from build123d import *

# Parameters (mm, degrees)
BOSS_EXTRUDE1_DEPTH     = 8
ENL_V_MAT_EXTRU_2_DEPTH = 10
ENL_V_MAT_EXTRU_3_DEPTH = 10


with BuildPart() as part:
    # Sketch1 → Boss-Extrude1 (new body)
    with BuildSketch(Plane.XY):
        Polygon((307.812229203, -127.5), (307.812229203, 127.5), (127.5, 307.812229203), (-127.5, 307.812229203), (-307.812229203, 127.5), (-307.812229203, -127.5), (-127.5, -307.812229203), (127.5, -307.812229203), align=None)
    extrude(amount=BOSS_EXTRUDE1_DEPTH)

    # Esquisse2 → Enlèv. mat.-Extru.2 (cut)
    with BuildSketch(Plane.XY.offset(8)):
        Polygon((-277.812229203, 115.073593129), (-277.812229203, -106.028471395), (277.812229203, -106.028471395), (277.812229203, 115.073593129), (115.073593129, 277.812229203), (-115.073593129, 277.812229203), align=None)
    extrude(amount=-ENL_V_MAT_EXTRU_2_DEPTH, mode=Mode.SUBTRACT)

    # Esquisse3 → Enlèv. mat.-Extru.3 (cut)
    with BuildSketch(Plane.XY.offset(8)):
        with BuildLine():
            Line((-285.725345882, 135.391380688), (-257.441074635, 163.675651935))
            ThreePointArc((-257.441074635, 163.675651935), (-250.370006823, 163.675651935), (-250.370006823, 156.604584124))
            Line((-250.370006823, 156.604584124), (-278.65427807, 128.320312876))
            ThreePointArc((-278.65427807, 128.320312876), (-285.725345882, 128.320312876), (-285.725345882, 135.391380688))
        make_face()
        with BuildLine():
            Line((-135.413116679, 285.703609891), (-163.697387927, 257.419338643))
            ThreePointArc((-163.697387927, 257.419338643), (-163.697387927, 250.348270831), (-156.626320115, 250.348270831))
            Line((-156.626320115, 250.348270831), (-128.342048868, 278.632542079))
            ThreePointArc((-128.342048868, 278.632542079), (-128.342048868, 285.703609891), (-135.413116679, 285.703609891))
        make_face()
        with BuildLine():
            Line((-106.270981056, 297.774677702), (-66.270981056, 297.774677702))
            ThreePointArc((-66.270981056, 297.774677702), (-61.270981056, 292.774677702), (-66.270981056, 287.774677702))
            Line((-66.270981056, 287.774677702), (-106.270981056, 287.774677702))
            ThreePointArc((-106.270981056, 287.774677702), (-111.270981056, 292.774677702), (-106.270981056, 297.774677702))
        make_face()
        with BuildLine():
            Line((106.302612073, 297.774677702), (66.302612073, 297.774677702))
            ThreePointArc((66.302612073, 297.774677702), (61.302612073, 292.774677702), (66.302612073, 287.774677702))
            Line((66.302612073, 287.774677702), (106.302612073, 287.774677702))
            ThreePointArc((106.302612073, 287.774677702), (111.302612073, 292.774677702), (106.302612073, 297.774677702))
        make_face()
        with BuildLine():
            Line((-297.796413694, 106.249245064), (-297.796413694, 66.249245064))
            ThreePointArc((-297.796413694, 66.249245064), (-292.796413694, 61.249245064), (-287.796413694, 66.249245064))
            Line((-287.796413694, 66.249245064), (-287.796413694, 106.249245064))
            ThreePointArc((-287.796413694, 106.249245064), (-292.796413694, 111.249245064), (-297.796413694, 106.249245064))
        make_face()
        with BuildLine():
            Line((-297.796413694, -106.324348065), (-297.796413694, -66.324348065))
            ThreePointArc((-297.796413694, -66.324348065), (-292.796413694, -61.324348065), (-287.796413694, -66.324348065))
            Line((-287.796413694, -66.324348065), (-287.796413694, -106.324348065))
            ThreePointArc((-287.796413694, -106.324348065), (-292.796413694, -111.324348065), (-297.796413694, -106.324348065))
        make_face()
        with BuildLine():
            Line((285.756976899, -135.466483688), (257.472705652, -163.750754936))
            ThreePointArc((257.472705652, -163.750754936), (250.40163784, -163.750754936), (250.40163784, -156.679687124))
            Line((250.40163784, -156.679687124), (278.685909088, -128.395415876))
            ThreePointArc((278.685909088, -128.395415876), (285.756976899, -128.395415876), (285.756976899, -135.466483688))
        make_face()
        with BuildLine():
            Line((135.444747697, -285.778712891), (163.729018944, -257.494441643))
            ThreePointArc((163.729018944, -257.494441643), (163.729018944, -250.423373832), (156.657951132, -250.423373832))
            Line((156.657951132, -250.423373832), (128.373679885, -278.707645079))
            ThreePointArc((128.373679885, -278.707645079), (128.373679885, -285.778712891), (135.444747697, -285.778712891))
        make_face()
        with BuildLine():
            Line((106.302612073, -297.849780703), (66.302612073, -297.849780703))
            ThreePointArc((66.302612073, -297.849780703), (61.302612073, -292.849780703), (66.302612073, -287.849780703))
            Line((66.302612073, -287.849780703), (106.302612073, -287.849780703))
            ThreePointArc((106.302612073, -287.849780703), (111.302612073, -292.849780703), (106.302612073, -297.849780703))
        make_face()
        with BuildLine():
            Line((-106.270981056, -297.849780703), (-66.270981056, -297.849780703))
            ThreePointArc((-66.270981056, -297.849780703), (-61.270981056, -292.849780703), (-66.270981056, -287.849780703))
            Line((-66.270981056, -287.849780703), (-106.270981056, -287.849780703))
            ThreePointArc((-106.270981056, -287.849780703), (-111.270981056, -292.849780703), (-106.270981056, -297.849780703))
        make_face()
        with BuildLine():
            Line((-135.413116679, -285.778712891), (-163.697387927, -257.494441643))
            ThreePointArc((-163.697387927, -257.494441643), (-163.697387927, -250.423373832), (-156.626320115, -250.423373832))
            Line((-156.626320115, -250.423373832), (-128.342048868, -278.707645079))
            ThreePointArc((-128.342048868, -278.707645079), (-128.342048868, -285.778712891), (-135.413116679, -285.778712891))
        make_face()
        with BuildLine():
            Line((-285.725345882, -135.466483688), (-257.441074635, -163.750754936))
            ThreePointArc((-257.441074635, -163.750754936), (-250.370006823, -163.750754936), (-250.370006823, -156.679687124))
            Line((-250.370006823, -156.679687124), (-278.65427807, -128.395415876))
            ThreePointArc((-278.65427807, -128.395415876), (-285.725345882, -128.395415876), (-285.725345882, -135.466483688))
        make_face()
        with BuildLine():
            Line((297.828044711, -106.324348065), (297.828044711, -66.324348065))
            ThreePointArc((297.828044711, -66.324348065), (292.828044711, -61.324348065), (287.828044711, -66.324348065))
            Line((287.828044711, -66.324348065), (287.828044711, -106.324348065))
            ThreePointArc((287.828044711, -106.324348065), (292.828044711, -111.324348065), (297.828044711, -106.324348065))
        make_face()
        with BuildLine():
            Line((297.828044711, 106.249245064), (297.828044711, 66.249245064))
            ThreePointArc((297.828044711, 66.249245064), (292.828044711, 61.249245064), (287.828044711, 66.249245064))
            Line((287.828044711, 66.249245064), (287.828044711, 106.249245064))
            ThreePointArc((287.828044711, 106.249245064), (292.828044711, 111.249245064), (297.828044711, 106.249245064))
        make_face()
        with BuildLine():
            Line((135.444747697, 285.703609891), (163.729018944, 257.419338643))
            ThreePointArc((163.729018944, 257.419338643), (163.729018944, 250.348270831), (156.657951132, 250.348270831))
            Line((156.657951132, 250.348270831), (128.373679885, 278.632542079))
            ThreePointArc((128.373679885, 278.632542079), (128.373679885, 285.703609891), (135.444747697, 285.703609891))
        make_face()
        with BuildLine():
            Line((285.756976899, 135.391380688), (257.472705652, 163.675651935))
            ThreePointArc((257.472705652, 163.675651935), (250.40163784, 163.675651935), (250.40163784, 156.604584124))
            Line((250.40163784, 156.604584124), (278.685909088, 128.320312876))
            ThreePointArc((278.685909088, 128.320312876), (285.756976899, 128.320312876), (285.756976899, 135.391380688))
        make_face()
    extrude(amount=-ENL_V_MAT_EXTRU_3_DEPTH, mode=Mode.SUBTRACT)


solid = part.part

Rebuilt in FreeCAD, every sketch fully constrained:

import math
import FreeCAD as App
import Part
import Sketcher
from FreeCAD import Vector

doc = App.newDocument("Part")
body = doc.addObject("PartDesign::Body", "Body")

sketch1 = body.newObject("Sketcher::SketchObject", "Sketch")
sketch1.AttachmentSupport = (doc.getObject("XY_Plane"), [""])
sketch1.MapMode = "FlatFace"
sketch1.addGeometry(Part.LineSegment(Vector(307.812229, -127.5, 0), Vector(307.812229, 127.5, 0)), False)
sketch1.addGeometry(Part.LineSegment(Vector(307.812229, 127.5, 0), Vector(127.5, 307.812229, 0)), False)
sketch1.addGeometry(Part.LineSegment(Vector(127.5, 307.812229, 0), Vector(-127.5, 307.812229, 0)), False)
sketch1.addGeometry(Part.LineSegment(Vector(-127.5, 307.812229, 0), Vector(-307.812229, 127.5, 0)), False)
sketch1.addGeometry(Part.LineSegment(Vector(-307.812229, 127.5, 0), Vector(-307.812229, -127.5, 0)), False)
sketch1.addGeometry(Part.LineSegment(Vector(-307.812229, -127.5, 0), Vector(-127.5, -307.812229, 0)), False)
sketch1.addGeometry(Part.LineSegment(Vector(-127.5, -307.812229, 0), Vector(127.5, -307.812229, 0)), False)
sketch1.addGeometry(Part.LineSegment(Vector(127.5, -307.812229, 0), Vector(307.812229, -127.5, 0)), False)
sketch1.addConstraint(Sketcher.Constraint("Coincident", 0, 2, 1, 1))
sketch1.addConstraint(Sketcher.Constraint("Coincident", 1, 2, 2, 1))
sketch1.addConstraint(Sketcher.Constraint("Coincident", 2, 2, 3, 1))
sketch1.addConstraint(Sketcher.Constraint("Coincident", 3, 2, 4, 1))
sketch1.addConstraint(Sketcher.Constraint("Coincident", 4, 2, 5, 1))
sketch1.addConstraint(Sketcher.Constraint("Coincident", 5, 2, 6, 1))
sketch1.addConstraint(Sketcher.Constraint("Coincident", 6, 2, 7, 1))
sketch1.addConstraint(Sketcher.Constraint("Coincident", 7, 2, 0, 1))
sketch1.addConstraint(Sketcher.Constraint("Vertical", 0))
sketch1.addConstraint(Sketcher.Constraint("Horizontal", 2))
sketch1.addConstraint(Sketcher.Constraint("Vertical", 4))
sketch1.addConstraint(Sketcher.Constraint("Horizontal", 6))
sketch1.addConstraint(Sketcher.Constraint("Symmetric", 0, 2, 4, 2, -1, 1))
sketch1.addConstraint(Sketcher.Constraint("Symmetric", 1, 2, 5, 2, -1, 1))
sketch1.addConstraint(Sketcher.Constraint("Perpendicular", 1, 3))
sketch1.addConstraint(Sketcher.Constraint("Perpendicular", 5, 7))
sketch1.addConstraint(Sketcher.Constraint("Horizontal", 0, 2, 3, 2))
sketch1.addConstraint(Sketcher.Constraint("Horizontal", 4, 2, 7, 2))
sketch1.addConstraint(Sketcher.Constraint("Vertical", 2, 2, 5, 2))
sketch1.addConstraint(Sketcher.Constraint("Equal", 6, 0))
sketch1.addConstraint(Sketcher.Constraint("DistanceX", 2, 2, 2, 1, 255.0))
sketch1.addConstraint(Sketcher.Constraint("Distance", 1, 255.0))
pad1 = body.newObject("PartDesign::Pad", "Pad")
pad1.Profile = sketch1
pad1.Length = 8

sketch2 = body.newObject("Sketcher::SketchObject", "Sketch001")
sketch2.AttachmentSupport = (doc.getObject("XY_Plane"), [""])
sketch2.MapMode = "FlatFace"
sketch2.AttachmentOffset = App.Placement(Vector(0, 0, 8), App.Rotation())
sketch2.addGeometry(Part.LineSegment(Vector(-277.812229, 115.073593, 0), Vector(-277.812229, -106.028471, 0)), False)
sketch2.addGeometry(Part.LineSegment(Vector(-277.812229, -106.028471, 0), Vector(277.812229, -106.028471, 0)), False)
sketch2.addGeometry(Part.LineSegment(Vector(277.812229, -106.028471, 0), Vector(277.812229, 115.073593, 0)), False)
sketch2.addGeometry(Part.LineSegment(Vector(277.812229, 115.073593, 0), Vector(115.073593, 277.812229, 0)), False)
sketch2.addGeometry(Part.LineSegment(Vector(115.073593, 277.812229, 0), Vector(-115.073593, 277.812229, 0)), False)
sketch2.addGeometry(Part.LineSegment(Vector(-115.073593, 277.812229, 0), Vector(-277.812229, 115.073593, 0)), False)
sketch2.addConstraint(Sketcher.Constraint("Coincident", 0, 2, 1, 1))
sketch2.addConstraint(Sketcher.Constraint("Coincident", 1, 2, 2, 1))
sketch2.addConstraint(Sketcher.Constraint("Coincident", 2, 2, 3, 1))
sketch2.addConstraint(Sketcher.Constraint("Coincident", 3, 2, 4, 1))
sketch2.addConstraint(Sketcher.Constraint("Coincident", 4, 2, 5, 1))
sketch2.addConstraint(Sketcher.Constraint("Coincident", 5, 2, 0, 1))
sketch2.addConstraint(Sketcher.Constraint("Vertical", 0))
sketch2.addConstraint(Sketcher.Constraint("Horizontal", 1))
sketch2.addConstraint(Sketcher.Constraint("Vertical", 2))
sketch2.addConstraint(Sketcher.Constraint("Horizontal", 4))
sketch2.addConstraint(Sketcher.Constraint("Symmetric", 2, 2, 5, 2, -2))
sketch2.addConstraint(Sketcher.Constraint("Perpendicular", 3, 5))
sketch2.addConstraint(Sketcher.Constraint("Equal", 3, 5))
sketch2.addConstraint(Sketcher.Constraint("DistanceX", 1, 1, 1, 2, 555.624458))
sketch2.addConstraint(Sketcher.Constraint("DistanceY", 1, 2, 3, 2, 383.840701))
sketch2.addConstraint(Sketcher.Constraint("DistanceX", 4, 2, 4, 1, 230.147186))
sketch2.addConstraint(Sketcher.Constraint("DistanceY", 0, 2, -1, 1, 106.028471))
pocket1 = body.newObject("PartDesign::Pocket", "Pocket")
pocket1.Profile = sketch2
pocket1.Length = 10

sketch3 = body.newObject("Sketcher::SketchObject", "Sketch002")
sketch3.AttachmentSupport = (doc.getObject("XY_Plane"), [""])
sketch3.MapMode = "FlatFace"
sketch3.AttachmentOffset = App.Placement(Vector(0, 0, 8), App.Rotation())
sketch3.addGeometry(Part.LineSegment(Vector(-257.441075, 163.675652, 0), Vector(-285.725346, 135.391381, 0)), False)
sketch3.addGeometry(Part.ArcOfCircle(Part.Circle(Vector(-282.189812, 131.855847, 0), Vector(0, 0, 1), 5), math.radians(135), math.radians(315)), False)
sketch3.addGeometry(Part.LineSegment(Vector(-278.654278, 128.320313, 0), Vector(-250.370007, 156.604584, 0)), False)
sketch3.addGeometry(Part.ArcOfCircle(Part.Circle(Vector(-253.905541, 160.140118, 0), Vector(0, 0, 1), 5), math.radians(-45), math.radians(135)), False)
sketch3.addGeometry(Part.LineSegment(Vector(-135.413117, 285.70361, 0), Vector(-163.697388, 257.419339, 0)), False)
sketch3.addGeometry(Part.ArcOfCircle(Part.Circle(Vector(-160.161854, 253.883805, 0), Vector(0, 0, 1), 5), math.radians(135), math.radians(315)), False)
sketch3.addGeometry(Part.LineSegment(Vector(-156.62632, 250.348271, 0), Vector(-128.342049, 278.632542, 0)), False)
sketch3.addGeometry(Part.ArcOfCircle(Part.Circle(Vector(-131.877583, 282.168076, 0), Vector(0, 0, 1), 5), math.radians(-45), math.radians(135)), False)
sketch3.addGeometry(Part.LineSegment(Vector(-66.270981, 297.774678, 0), Vector(-106.270981, 297.774678, 0)), False)
sketch3.addGeometry(Part.ArcOfCircle(Part.Circle(Vector(-106.270981, 292.774678, 0), Vector(0, 0, 1), 5), math.radians(90), math.radians(270)), False)
sketch3.addGeometry(Part.LineSegment(Vector(-106.270981, 287.774678, 0), Vector(-66.270981, 287.774678, 0)), False)
sketch3.addGeometry(Part.ArcOfCircle(Part.Circle(Vector(-66.270981, 292.774678, 0), Vector(0, 0, 1), 5), math.radians(-90), math.radians(90)), False)
sketch3.addGeometry(Part.LineSegment(Vector(106.302612, 297.774678, 0), Vector(66.302612, 297.774678, 0)), False)
sketch3.addGeometry(Part.ArcOfCircle(Part.Circle(Vector(66.302612, 292.774678, 0), Vector(0, 0, 1), 5), math.radians(90), math.radians(270)), False)
sketch3.addGeometry(Part.LineSegment(Vector(66.302612, 287.774678, 0), Vector(106.302612, 287.774678, 0)), False)
sketch3.addGeometry(Part.ArcOfCircle(Part.Circle(Vector(106.302612, 292.774678, 0), Vector(0, 0, 1), 5), math.radians(-90), math.radians(90)), False)
sketch3.addGeometry(Part.LineSegment(Vector(-297.796414, 106.249245, 0), Vector(-297.796414, 66.249245, 0)), False)
sketch3.addGeometry(Part.ArcOfCircle(Part.Circle(Vector(-292.796414, 66.249245, 0), Vector(0, 0, 1), 5), math.radians(180), math.radians(360)), False)
sketch3.addGeometry(Part.LineSegment(Vector(-287.796414, 66.249245, 0), Vector(-287.796414, 106.249245, 0)), False)
sketch3.addGeometry(Part.ArcOfCircle(Part.Circle(Vector(-292.796414, 106.249245, 0), Vector(0, 0, 1), 5), math.radians(0), math.radians(180)), False)
sketch3.addGeometry(Part.LineSegment(Vector(-297.796414, -66.324348, 0), Vector(-297.796414, -106.324348, 0)), False)
sketch3.addGeometry(Part.ArcOfCircle(Part.Circle(Vector(-292.796414, -106.324348, 0), Vector(0, 0, 1), 5), math.radians(180), math.radians(360)), False)
sketch3.addGeometry(Part.LineSegment(Vector(-287.796414, -106.324348, 0), Vector(-287.796414, -66.324348, 0)), False)
sketch3.addGeometry(Part.ArcOfCircle(Part.Circle(Vector(-292.796414, -66.324348, 0), Vector(0, 0, 1), 5), math.radians(0), math.radians(180)), False)
sketch3.addGeometry(Part.LineSegment(Vector(257.472706, -163.750755, 0), Vector(285.756977, -135.466484, 0)), False)
sketch3.addGeometry(Part.ArcOfCircle(Part.Circle(Vector(282.221443, -131.93095, 0), Vector(0, 0, 1), 5), math.radians(-45), math.radians(135)), False)
sketch3.addGeometry(Part.LineSegment(Vector(278.685909, -128.395416, 0), Vector(250.401638, -156.679687, 0)), False)
sketch3.addGeometry(Part.ArcOfCircle(Part.Circle(Vector(253.937172, -160.215221, 0), Vector(0, 0, 1), 5), math.radians(135), math.radians(315)), False)
sketch3.addGeometry(Part.LineSegment(Vector(135.444748, -285.778713, 0), Vector(163.729019, -257.494442, 0)), False)
sketch3.addGeometry(Part.ArcOfCircle(Part.Circle(Vector(160.193485, -253.958908, 0), Vector(0, 0, 1), 5), math.radians(-45), math.radians(135)), False)
sketch3.addGeometry(Part.LineSegment(Vector(156.657951, -250.423374, 0), Vector(128.37368, -278.707645, 0)), False)
sketch3.addGeometry(Part.ArcOfCircle(Part.Circle(Vector(131.909214, -282.243179, 0), Vector(0, 0, 1), 5), math.radians(135), math.radians(315)), False)
sketch3.addGeometry(Part.LineSegment(Vector(66.302612, -297.849781, 0), Vector(106.302612, -297.849781, 0)), False)
sketch3.addGeometry(Part.ArcOfCircle(Part.Circle(Vector(106.302612, -292.849781, 0), Vector(0, 0, 1), 5), math.radians(-90), math.radians(90)), False)
sketch3.addGeometry(Part.LineSegment(Vector(106.302612, -287.849781, 0), Vector(66.302612, -287.849781, 0)), False)
sketch3.addGeometry(Part.ArcOfCircle(Part.Circle(Vector(66.302612, -292.849781, 0), Vector(0, 0, 1), 5), math.radians(90), math.radians(270)), False)
sketch3.addGeometry(Part.LineSegment(Vector(-106.270981, -297.849781, 0), Vector(-66.270981, -297.849781, 0)), False)
sketch3.addGeometry(Part.ArcOfCircle(Part.Circle(Vector(-66.270981, -292.849781, 0), Vector(0, 0, 1), 5), math.radians(-90), math.radians(90)), False)
sketch3.addGeometry(Part.LineSegment(Vector(-66.270981, -287.849781, 0), Vector(-106.270981, -287.849781, 0)), False)
sketch3.addGeometry(Part.ArcOfCircle(Part.Circle(Vector(-106.270981, -292.849781, 0), Vector(0, 0, 1), 5), math.radians(90), math.radians(270)), False)
sketch3.addGeometry(Part.LineSegment(Vector(-163.697388, -257.494442, 0), Vector(-135.413117, -285.778713, 0)), False)
sketch3.addGeometry(Part.ArcOfCircle(Part.Circle(Vector(-131.877583, -282.243179, 0), Vector(0, 0, 1), 5), math.radians(-135), math.radians(45)), False)
sketch3.addGeometry(Part.LineSegment(Vector(-128.342049, -278.707645, 0), Vector(-156.62632, -250.423374, 0)), False)
sketch3.addGeometry(Part.ArcOfCircle(Part.Circle(Vector(-160.161854, -253.958908, 0), Vector(0, 0, 1), 5), math.radians(45), math.radians(225)), False)
sketch3.addGeometry(Part.LineSegment(Vector(-285.725346, -135.466484, 0), Vector(-257.441075, -163.750755, 0)), False)
sketch3.addGeometry(Part.ArcOfCircle(Part.Circle(Vector(-253.905541, -160.215221, 0), Vector(0, 0, 1), 5), math.radians(-135), math.radians(45)), False)
sketch3.addGeometry(Part.LineSegment(Vector(-250.370007, -156.679687, 0), Vector(-278.654278, -128.395416, 0)), False)
sketch3.addGeometry(Part.ArcOfCircle(Part.Circle(Vector(-282.189812, -131.93095, 0), Vector(0, 0, 1), 5), math.radians(45), math.radians(225)), False)
sketch3.addGeometry(Part.LineSegment(Vector(297.828045, -106.324348, 0), Vector(297.828045, -66.324348, 0)), False)
sketch3.addGeometry(Part.ArcOfCircle(Part.Circle(Vector(292.828045, -66.324348, 0), Vector(0, 0, 1), 5), math.radians(0), math.radians(180)), False)
sketch3.addGeometry(Part.LineSegment(Vector(287.828045, -66.324348, 0), Vector(287.828045, -106.324348, 0)), False)
sketch3.addGeometry(Part.ArcOfCircle(Part.Circle(Vector(292.828045, -106.324348, 0), Vector(0, 0, 1), 5), math.radians(180), math.radians(360)), False)
sketch3.addGeometry(Part.LineSegment(Vector(297.828045, 66.249245, 0), Vector(297.828045, 106.249245, 0)), False)
sketch3.addGeometry(Part.ArcOfCircle(Part.Circle(Vector(292.828045, 106.249245, 0), Vector(0, 0, 1), 5), math.radians(0), math.radians(180)), False)
sketch3.addGeometry(Part.LineSegment(Vector(287.828045, 106.249245, 0), Vector(287.828045, 66.249245, 0)), False)
sketch3.addGeometry(Part.ArcOfCircle(Part.Circle(Vector(292.828045, 66.249245, 0), Vector(0, 0, 1), 5), math.radians(180), math.radians(360)), False)
sketch3.addGeometry(Part.LineSegment(Vector(163.729019, 257.419339, 0), Vector(135.444748, 285.70361, 0)), False)
sketch3.addGeometry(Part.ArcOfCircle(Part.Circle(Vector(131.909214, 282.168076, 0), Vector(0, 0, 1), 5), math.radians(45), math.radians(225)), False)
sketch3.addGeometry(Part.LineSegment(Vector(128.37368, 278.632542, 0), Vector(156.657951, 250.348271, 0)), False)
sketch3.addGeometry(Part.ArcOfCircle(Part.Circle(Vector(160.193485, 253.883805, 0), Vector(0, 0, 1), 5), math.radians(-135), math.radians(45)), False)
sketch3.addGeometry(Part.LineSegment(Vector(285.756977, 135.391381, 0), Vector(257.472706, 163.675652, 0)), False)
sketch3.addGeometry(Part.ArcOfCircle(Part.Circle(Vector(253.937172, 160.140118, 0), Vector(0, 0, 1), 5), math.radians(45), math.radians(225)), False)
sketch3.addGeometry(Part.LineSegment(Vector(250.401638, 156.604584, 0), Vector(278.685909, 128.320313, 0)), False)
sketch3.addGeometry(Part.ArcOfCircle(Part.Circle(Vector(282.221443, 131.855847, 0), Vector(0, 0, 1), 5), math.radians(-135), math.radians(45)), False)
sketch3.addConstraint(Sketcher.Constraint("Tangent", 0, 2, 1, 1))
sketch3.addConstraint(Sketcher.Constraint("Tangent", 1, 2, 2, 1))
sketch3.addConstraint(Sketcher.Constraint("Tangent", 2, 2, 3, 1))
sketch3.addConstraint(Sketcher.Constraint("Tangent", 3, 2, 0, 1))
sketch3.addConstraint(Sketcher.Constraint("Tangent", 4, 2, 5, 1))
sketch3.addConstraint(Sketcher.Constraint("Tangent", 5, 2, 6, 1))
sketch3.addConstraint(Sketcher.Constraint("Tangent", 6, 2, 7, 1))
sketch3.addConstraint(Sketcher.Constraint("Tangent", 7, 2, 4, 1))
sketch3.addConstraint(Sketcher.Constraint("Tangent", 8, 2, 9, 1))
sketch3.addConstraint(Sketcher.Constraint("Tangent", 9, 2, 10, 1))
sketch3.addConstraint(Sketcher.Constraint("Tangent", 10, 2, 11, 1))
sketch3.addConstraint(Sketcher.Constraint("Tangent", 11, 2, 8, 1))
sketch3.addConstraint(Sketcher.Constraint("Tangent", 12, 2, 13, 1))
sketch3.addConstraint(Sketcher.Constraint("Tangent", 13, 2, 14, 1))
sketch3.addConstraint(Sketcher.Constraint("Tangent", 14, 2, 15, 1))
sketch3.addConstraint(Sketcher.Constraint("Tangent", 15, 2, 12, 1))
sketch3.addConstraint(Sketcher.Constraint("Tangent", 16, 2, 17, 1))
sketch3.addConstraint(Sketcher.Constraint("Tangent", 17, 2, 18, 1))
sketch3.addConstraint(Sketcher.Constraint("Tangent", 18, 2, 19, 1))
sketch3.addConstraint(Sketcher.Constraint("Tangent", 19, 2, 16, 1))
sketch3.addConstraint(Sketcher.Constraint("Tangent", 20, 2, 21, 1))
sketch3.addConstraint(Sketcher.Constraint("Tangent", 21, 2, 22, 1))
sketch3.addConstraint(Sketcher.Constraint("Tangent", 22, 2, 23, 1))
sketch3.addConstraint(Sketcher.Constraint("Tangent", 23, 2, 20, 1))
sketch3.addConstraint(Sketcher.Constraint("Tangent", 24, 2, 25, 1))
sketch3.addConstraint(Sketcher.Constraint("Tangent", 25, 2, 26, 1))
sketch3.addConstraint(Sketcher.Constraint("Tangent", 26, 2, 27, 1))
sketch3.addConstraint(Sketcher.Constraint("Tangent", 27, 2, 24, 1))
sketch3.addConstraint(Sketcher.Constraint("Tangent", 28, 2, 29, 1))
sketch3.addConstraint(Sketcher.Constraint("Tangent", 29, 2, 30, 1))
sketch3.addConstraint(Sketcher.Constraint("Tangent", 30, 2, 31, 1))
sketch3.addConstraint(Sketcher.Constraint("Tangent", 31, 2, 28, 1))
sketch3.addConstraint(Sketcher.Constraint("Tangent", 32, 2, 33, 1))
sketch3.addConstraint(Sketcher.Constraint("Tangent", 33, 2, 34, 1))
sketch3.addConstraint(Sketcher.Constraint("Tangent", 34, 2, 35, 1))
sketch3.addConstraint(Sketcher.Constraint("Tangent", 35, 2, 32, 1))
sketch3.addConstraint(Sketcher.Constraint("Tangent", 36, 2, 37, 1))
sketch3.addConstraint(Sketcher.Constraint("Tangent", 37, 2, 38, 1))
sketch3.addConstraint(Sketcher.Constraint("Tangent", 38, 2, 39, 1))
sketch3.addConstraint(Sketcher.Constraint("Tangent", 39, 2, 36, 1))
sketch3.addConstraint(Sketcher.Constraint("Tangent", 40, 2, 41, 1))
sketch3.addConstraint(Sketcher.Constraint("Tangent", 41, 2, 42, 1))
sketch3.addConstraint(Sketcher.Constraint("Tangent", 42, 2, 43, 1))
sketch3.addConstraint(Sketcher.Constraint("Tangent", 43, 2, 40, 1))
sketch3.addConstraint(Sketcher.Constraint("Tangent", 44, 2, 45, 1))
sketch3.addConstraint(Sketcher.Constraint("Tangent", 45, 2, 46, 1))
sketch3.addConstraint(Sketcher.Constraint("Tangent", 46, 2, 47, 1))
sketch3.addConstraint(Sketcher.Constraint("Tangent", 47, 2, 44, 1))
sketch3.addConstraint(Sketcher.Constraint("Tangent", 48, 2, 49, 1))
sketch3.addConstraint(Sketcher.Constraint("Tangent", 49, 2, 50, 1))
sketch3.addConstraint(Sketcher.Constraint("Tangent", 50, 2, 51, 1))
sketch3.addConstraint(Sketcher.Constraint("Tangent", 51, 2, 48, 1))
sketch3.addConstraint(Sketcher.Constraint("Tangent", 52, 2, 53, 1))
sketch3.addConstraint(Sketcher.Constraint("Tangent", 53, 2, 54, 1))
sketch3.addConstraint(Sketcher.Constraint("Tangent", 54, 2, 55, 1))
sketch3.addConstraint(Sketcher.Constraint("Tangent", 55, 2, 52, 1))
sketch3.addConstraint(Sketcher.Constraint("Tangent", 56, 2, 57, 1))
sketch3.addConstraint(Sketcher.Constraint("Tangent", 57, 2, 58, 1))
sketch3.addConstraint(Sketcher.Constraint("Tangent", 58, 2, 59, 1))
sketch3.addConstraint(Sketcher.Constraint("Tangent", 59, 2, 56, 1))
sketch3.addConstraint(Sketcher.Constraint("Tangent", 60, 2, 61, 1))
sketch3.addConstraint(Sketcher.Constraint("Tangent", 61, 2, 62, 1))
sketch3.addConstraint(Sketcher.Constraint("Tangent", 62, 2, 63, 1))
sketch3.addConstraint(Sketcher.Constraint("Tangent", 63, 2, 60, 1))
sketch3.addConstraint(Sketcher.Constraint("Horizontal", 8))
sketch3.addConstraint(Sketcher.Constraint("Horizontal", 10))
sketch3.addConstraint(Sketcher.Constraint("Horizontal", 12))
sketch3.addConstraint(Sketcher.Constraint("Horizontal", 14))
sketch3.addConstraint(Sketcher.Constraint("Vertical", 16))
sketch3.addConstraint(Sketcher.Constraint("Vertical", 18))
sketch3.addConstraint(Sketcher.Constraint("Vertical", 20))
sketch3.addConstraint(Sketcher.Constraint("Vertical", 22))
sketch3.addConstraint(Sketcher.Constraint("Horizontal", 32))
sketch3.addConstraint(Sketcher.Constraint("Horizontal", 34))
sketch3.addConstraint(Sketcher.Constraint("Horizontal", 36))
sketch3.addConstraint(Sketcher.Constraint("Horizontal", 38))
sketch3.addConstraint(Sketcher.Constraint("Vertical", 48))
sketch3.addConstraint(Sketcher.Constraint("Vertical", 50))
sketch3.addConstraint(Sketcher.Constraint("Vertical", 52))
sketch3.addConstraint(Sketcher.Constraint("Vertical", 54))
sketch3.addConstraint(Sketcher.Constraint("Equal", 1, 3))
sketch3.addConstraint(Sketcher.Constraint("Equal", 3, 5))
sketch3.addConstraint(Sketcher.Constraint("Equal", 5, 7))
sketch3.addConstraint(Sketcher.Constraint("Equal", 7, 9))
sketch3.addConstraint(Sketcher.Constraint("Equal", 11, 13))
sketch3.addConstraint(Sketcher.Constraint("Equal", 15, 17))
sketch3.addConstraint(Sketcher.Constraint("Equal", 19, 21))
sketch3.addConstraint(Sketcher.Constraint("Equal", 23, 25))
sketch3.addConstraint(Sketcher.Constraint("Equal", 25, 27))
sketch3.addConstraint(Sketcher.Constraint("Equal", 27, 29))
sketch3.addConstraint(Sketcher.Constraint("Equal", 29, 31))
sketch3.addConstraint(Sketcher.Constraint("Equal", 31, 33))
sketch3.addConstraint(Sketcher.Constraint("Equal", 35, 37))
sketch3.addConstraint(Sketcher.Constraint("Equal", 39, 41))
sketch3.addConstraint(Sketcher.Constraint("Equal", 41, 43))
sketch3.addConstraint(Sketcher.Constraint("Equal", 43, 45))
sketch3.addConstraint(Sketcher.Constraint("Equal", 45, 47))
sketch3.addConstraint(Sketcher.Constraint("Equal", 47, 49))
sketch3.addConstraint(Sketcher.Constraint("Equal", 51, 53))
sketch3.addConstraint(Sketcher.Constraint("Equal", 55, 57))
sketch3.addConstraint(Sketcher.Constraint("Equal", 57, 59))
sketch3.addConstraint(Sketcher.Constraint("Equal", 59, 61))
sketch3.addConstraint(Sketcher.Constraint("Equal", 61, 63))
sketch3.addConstraint(Sketcher.Constraint("Parallel", 2, 4))
sketch3.addConstraint(Sketcher.Constraint("Parallel", 6, 24))
sketch3.addConstraint(Sketcher.Constraint("Parallel", 26, 28))
sketch3.addConstraint(Sketcher.Constraint("Perpendicular", 30, 40))
sketch3.addConstraint(Sketcher.Constraint("Parallel", 42, 44))
sketch3.addConstraint(Sketcher.Constraint("Parallel", 46, 56))
sketch3.addConstraint(Sketcher.Constraint("Parallel", 58, 60))
sketch3.addConstraint(Sketcher.Constraint("Horizontal", 11, 3, 13, 3))
sketch3.addConstraint(Sketcher.Constraint("Horizontal", 35, 3, 37, 3))
sketch3.addConstraint(Sketcher.Constraint("Horizontal", 31, 3, 41, 3))
sketch3.addConstraint(Sketcher.Constraint("Horizontal", 29, 3, 43, 3))
sketch3.addConstraint(Sketcher.Constraint("Horizontal", 27, 3, 45, 3))
sketch3.addConstraint(Sketcher.Constraint("Horizontal", 25, 3, 47, 3))
sketch3.addConstraint(Sketcher.Constraint("Horizontal", 23, 3, 49, 3))
sketch3.addConstraint(Sketcher.Constraint("Horizontal", 21, 3, 51, 3))
sketch3.addConstraint(Sketcher.Constraint("Horizontal", 19, 3, 53, 3))
sketch3.addConstraint(Sketcher.Constraint("Horizontal", 17, 3, 55, 3))
sketch3.addConstraint(Sketcher.Constraint("Horizontal", 7, 3, 57, 3))
sketch3.addConstraint(Sketcher.Constraint("Horizontal", 5, 3, 59, 3))
sketch3.addConstraint(Sketcher.Constraint("Horizontal", 3, 3, 61, 3))
sketch3.addConstraint(Sketcher.Constraint("Horizontal", 1, 3, 63, 3))
sketch3.addConstraint(Sketcher.Constraint("Horizontal", 31, 2, 40, 2))
sketch3.addConstraint(Sketcher.Constraint("Vertical", 19, 3, 21, 3))
sketch3.addConstraint(Sketcher.Constraint("Vertical", 15, 3, 33, 3))
sketch3.addConstraint(Sketcher.Constraint("Vertical", 13, 3, 35, 3))
sketch3.addConstraint(Sketcher.Constraint("Vertical", 11, 3, 37, 3))
sketch3.addConstraint(Sketcher.Constraint("Vertical", 9, 3, 39, 3))
sketch3.addConstraint(Sketcher.Constraint("Vertical", 7, 3, 41, 3))
sketch3.addConstraint(Sketcher.Constraint("Vertical", 5, 3, 43, 3))
sketch3.addConstraint(Sketcher.Constraint("Vertical", 3, 3, 45, 3))
sketch3.addConstraint(Sketcher.Constraint("Vertical", 1, 3, 47, 3))
sketch3.addConstraint(Sketcher.Constraint("Vertical", 51, 3, 53, 3))
sketch3.addConstraint(Sketcher.Constraint("Vertical", 31, 3, 57, 3))
sketch3.addConstraint(Sketcher.Constraint("Vertical", 27, 3, 61, 3))
sketch3.addConstraint(Sketcher.Constraint("Equal", 10, 12))
sketch3.addConstraint(Sketcher.Constraint("Equal", 38, 16))
sketch3.addConstraint(Sketcher.Constraint("Equal", 18, 20))
sketch3.addConstraint(Sketcher.Constraint("Equal", 2, 4))
sketch3.addConstraint(Sketcher.Constraint("Radius", 1, 5.0))
sketch3.addConstraint(Sketcher.Constraint("DistanceX", 8, 2, 8, 1, 40.0))
sketch3.addConstraint(Sketcher.Constraint("Distance", 0, 40.0))
sketch3.addConstraint(Sketcher.Constraint("DistanceX", 1, 3, -1, 1, 282.189812))
sketch3.addConstraint(Sketcher.Constraint("DistanceY", -1, 1, 3, 3, 160.140118))
sketch3.addConstraint(Sketcher.Constraint("DistanceX", 9, 3, -1, 1, 106.270981))
sketch3.addConstraint(Sketcher.Constraint("DistanceY", 21, 3, -1, 1, 106.324348))
sketch3.addConstraint(Sketcher.Constraint("DistanceY", 25, 3, -1, 1, 131.93095))
sketch3.addConstraint(Sketcher.Constraint("DistanceX", -1, 1, 27, 3, 253.937172))
sketch3.addConstraint(Sketcher.Constraint("DistanceY", 31, 3, -1, 1, 282.243179))
sketch3.addConstraint(Sketcher.Constraint("DistanceY", 33, 3, -1, 1, 292.849781))
sketch3.addConstraint(Sketcher.Constraint("DistanceY", -1, 1, 4, 2, 257.419339))
sketch3.addConstraint(Sketcher.Constraint("DistanceX", 5, 2, -1, 1, 156.62632))
sketch3.addConstraint(Sketcher.Constraint("DistanceX", -1, 1, 28, 2, 163.729019))
sketch3.addConstraint(Sketcher.Constraint("DistanceY", -1, 1, 9, 3, 292.774678))
sketch3.addConstraint(Sketcher.Constraint("DistanceX", -1, 1, 13, 3, 66.302612))
sketch3.addConstraint(Sketcher.Constraint("DistanceX", 17, 3, -1, 1, 292.796414))
sketch3.addConstraint(Sketcher.Constraint("DistanceY", -1, 1, 17, 3, 66.249245))
sketch3.addConstraint(Sketcher.Constraint("DistanceX", -1, 1, 49, 3, 292.828045))
pocket2 = body.newObject("PartDesign::Pocket", "Pocket001")
pocket2.Profile = sketch3
pocket2.Length = 10

doc.recompute()
